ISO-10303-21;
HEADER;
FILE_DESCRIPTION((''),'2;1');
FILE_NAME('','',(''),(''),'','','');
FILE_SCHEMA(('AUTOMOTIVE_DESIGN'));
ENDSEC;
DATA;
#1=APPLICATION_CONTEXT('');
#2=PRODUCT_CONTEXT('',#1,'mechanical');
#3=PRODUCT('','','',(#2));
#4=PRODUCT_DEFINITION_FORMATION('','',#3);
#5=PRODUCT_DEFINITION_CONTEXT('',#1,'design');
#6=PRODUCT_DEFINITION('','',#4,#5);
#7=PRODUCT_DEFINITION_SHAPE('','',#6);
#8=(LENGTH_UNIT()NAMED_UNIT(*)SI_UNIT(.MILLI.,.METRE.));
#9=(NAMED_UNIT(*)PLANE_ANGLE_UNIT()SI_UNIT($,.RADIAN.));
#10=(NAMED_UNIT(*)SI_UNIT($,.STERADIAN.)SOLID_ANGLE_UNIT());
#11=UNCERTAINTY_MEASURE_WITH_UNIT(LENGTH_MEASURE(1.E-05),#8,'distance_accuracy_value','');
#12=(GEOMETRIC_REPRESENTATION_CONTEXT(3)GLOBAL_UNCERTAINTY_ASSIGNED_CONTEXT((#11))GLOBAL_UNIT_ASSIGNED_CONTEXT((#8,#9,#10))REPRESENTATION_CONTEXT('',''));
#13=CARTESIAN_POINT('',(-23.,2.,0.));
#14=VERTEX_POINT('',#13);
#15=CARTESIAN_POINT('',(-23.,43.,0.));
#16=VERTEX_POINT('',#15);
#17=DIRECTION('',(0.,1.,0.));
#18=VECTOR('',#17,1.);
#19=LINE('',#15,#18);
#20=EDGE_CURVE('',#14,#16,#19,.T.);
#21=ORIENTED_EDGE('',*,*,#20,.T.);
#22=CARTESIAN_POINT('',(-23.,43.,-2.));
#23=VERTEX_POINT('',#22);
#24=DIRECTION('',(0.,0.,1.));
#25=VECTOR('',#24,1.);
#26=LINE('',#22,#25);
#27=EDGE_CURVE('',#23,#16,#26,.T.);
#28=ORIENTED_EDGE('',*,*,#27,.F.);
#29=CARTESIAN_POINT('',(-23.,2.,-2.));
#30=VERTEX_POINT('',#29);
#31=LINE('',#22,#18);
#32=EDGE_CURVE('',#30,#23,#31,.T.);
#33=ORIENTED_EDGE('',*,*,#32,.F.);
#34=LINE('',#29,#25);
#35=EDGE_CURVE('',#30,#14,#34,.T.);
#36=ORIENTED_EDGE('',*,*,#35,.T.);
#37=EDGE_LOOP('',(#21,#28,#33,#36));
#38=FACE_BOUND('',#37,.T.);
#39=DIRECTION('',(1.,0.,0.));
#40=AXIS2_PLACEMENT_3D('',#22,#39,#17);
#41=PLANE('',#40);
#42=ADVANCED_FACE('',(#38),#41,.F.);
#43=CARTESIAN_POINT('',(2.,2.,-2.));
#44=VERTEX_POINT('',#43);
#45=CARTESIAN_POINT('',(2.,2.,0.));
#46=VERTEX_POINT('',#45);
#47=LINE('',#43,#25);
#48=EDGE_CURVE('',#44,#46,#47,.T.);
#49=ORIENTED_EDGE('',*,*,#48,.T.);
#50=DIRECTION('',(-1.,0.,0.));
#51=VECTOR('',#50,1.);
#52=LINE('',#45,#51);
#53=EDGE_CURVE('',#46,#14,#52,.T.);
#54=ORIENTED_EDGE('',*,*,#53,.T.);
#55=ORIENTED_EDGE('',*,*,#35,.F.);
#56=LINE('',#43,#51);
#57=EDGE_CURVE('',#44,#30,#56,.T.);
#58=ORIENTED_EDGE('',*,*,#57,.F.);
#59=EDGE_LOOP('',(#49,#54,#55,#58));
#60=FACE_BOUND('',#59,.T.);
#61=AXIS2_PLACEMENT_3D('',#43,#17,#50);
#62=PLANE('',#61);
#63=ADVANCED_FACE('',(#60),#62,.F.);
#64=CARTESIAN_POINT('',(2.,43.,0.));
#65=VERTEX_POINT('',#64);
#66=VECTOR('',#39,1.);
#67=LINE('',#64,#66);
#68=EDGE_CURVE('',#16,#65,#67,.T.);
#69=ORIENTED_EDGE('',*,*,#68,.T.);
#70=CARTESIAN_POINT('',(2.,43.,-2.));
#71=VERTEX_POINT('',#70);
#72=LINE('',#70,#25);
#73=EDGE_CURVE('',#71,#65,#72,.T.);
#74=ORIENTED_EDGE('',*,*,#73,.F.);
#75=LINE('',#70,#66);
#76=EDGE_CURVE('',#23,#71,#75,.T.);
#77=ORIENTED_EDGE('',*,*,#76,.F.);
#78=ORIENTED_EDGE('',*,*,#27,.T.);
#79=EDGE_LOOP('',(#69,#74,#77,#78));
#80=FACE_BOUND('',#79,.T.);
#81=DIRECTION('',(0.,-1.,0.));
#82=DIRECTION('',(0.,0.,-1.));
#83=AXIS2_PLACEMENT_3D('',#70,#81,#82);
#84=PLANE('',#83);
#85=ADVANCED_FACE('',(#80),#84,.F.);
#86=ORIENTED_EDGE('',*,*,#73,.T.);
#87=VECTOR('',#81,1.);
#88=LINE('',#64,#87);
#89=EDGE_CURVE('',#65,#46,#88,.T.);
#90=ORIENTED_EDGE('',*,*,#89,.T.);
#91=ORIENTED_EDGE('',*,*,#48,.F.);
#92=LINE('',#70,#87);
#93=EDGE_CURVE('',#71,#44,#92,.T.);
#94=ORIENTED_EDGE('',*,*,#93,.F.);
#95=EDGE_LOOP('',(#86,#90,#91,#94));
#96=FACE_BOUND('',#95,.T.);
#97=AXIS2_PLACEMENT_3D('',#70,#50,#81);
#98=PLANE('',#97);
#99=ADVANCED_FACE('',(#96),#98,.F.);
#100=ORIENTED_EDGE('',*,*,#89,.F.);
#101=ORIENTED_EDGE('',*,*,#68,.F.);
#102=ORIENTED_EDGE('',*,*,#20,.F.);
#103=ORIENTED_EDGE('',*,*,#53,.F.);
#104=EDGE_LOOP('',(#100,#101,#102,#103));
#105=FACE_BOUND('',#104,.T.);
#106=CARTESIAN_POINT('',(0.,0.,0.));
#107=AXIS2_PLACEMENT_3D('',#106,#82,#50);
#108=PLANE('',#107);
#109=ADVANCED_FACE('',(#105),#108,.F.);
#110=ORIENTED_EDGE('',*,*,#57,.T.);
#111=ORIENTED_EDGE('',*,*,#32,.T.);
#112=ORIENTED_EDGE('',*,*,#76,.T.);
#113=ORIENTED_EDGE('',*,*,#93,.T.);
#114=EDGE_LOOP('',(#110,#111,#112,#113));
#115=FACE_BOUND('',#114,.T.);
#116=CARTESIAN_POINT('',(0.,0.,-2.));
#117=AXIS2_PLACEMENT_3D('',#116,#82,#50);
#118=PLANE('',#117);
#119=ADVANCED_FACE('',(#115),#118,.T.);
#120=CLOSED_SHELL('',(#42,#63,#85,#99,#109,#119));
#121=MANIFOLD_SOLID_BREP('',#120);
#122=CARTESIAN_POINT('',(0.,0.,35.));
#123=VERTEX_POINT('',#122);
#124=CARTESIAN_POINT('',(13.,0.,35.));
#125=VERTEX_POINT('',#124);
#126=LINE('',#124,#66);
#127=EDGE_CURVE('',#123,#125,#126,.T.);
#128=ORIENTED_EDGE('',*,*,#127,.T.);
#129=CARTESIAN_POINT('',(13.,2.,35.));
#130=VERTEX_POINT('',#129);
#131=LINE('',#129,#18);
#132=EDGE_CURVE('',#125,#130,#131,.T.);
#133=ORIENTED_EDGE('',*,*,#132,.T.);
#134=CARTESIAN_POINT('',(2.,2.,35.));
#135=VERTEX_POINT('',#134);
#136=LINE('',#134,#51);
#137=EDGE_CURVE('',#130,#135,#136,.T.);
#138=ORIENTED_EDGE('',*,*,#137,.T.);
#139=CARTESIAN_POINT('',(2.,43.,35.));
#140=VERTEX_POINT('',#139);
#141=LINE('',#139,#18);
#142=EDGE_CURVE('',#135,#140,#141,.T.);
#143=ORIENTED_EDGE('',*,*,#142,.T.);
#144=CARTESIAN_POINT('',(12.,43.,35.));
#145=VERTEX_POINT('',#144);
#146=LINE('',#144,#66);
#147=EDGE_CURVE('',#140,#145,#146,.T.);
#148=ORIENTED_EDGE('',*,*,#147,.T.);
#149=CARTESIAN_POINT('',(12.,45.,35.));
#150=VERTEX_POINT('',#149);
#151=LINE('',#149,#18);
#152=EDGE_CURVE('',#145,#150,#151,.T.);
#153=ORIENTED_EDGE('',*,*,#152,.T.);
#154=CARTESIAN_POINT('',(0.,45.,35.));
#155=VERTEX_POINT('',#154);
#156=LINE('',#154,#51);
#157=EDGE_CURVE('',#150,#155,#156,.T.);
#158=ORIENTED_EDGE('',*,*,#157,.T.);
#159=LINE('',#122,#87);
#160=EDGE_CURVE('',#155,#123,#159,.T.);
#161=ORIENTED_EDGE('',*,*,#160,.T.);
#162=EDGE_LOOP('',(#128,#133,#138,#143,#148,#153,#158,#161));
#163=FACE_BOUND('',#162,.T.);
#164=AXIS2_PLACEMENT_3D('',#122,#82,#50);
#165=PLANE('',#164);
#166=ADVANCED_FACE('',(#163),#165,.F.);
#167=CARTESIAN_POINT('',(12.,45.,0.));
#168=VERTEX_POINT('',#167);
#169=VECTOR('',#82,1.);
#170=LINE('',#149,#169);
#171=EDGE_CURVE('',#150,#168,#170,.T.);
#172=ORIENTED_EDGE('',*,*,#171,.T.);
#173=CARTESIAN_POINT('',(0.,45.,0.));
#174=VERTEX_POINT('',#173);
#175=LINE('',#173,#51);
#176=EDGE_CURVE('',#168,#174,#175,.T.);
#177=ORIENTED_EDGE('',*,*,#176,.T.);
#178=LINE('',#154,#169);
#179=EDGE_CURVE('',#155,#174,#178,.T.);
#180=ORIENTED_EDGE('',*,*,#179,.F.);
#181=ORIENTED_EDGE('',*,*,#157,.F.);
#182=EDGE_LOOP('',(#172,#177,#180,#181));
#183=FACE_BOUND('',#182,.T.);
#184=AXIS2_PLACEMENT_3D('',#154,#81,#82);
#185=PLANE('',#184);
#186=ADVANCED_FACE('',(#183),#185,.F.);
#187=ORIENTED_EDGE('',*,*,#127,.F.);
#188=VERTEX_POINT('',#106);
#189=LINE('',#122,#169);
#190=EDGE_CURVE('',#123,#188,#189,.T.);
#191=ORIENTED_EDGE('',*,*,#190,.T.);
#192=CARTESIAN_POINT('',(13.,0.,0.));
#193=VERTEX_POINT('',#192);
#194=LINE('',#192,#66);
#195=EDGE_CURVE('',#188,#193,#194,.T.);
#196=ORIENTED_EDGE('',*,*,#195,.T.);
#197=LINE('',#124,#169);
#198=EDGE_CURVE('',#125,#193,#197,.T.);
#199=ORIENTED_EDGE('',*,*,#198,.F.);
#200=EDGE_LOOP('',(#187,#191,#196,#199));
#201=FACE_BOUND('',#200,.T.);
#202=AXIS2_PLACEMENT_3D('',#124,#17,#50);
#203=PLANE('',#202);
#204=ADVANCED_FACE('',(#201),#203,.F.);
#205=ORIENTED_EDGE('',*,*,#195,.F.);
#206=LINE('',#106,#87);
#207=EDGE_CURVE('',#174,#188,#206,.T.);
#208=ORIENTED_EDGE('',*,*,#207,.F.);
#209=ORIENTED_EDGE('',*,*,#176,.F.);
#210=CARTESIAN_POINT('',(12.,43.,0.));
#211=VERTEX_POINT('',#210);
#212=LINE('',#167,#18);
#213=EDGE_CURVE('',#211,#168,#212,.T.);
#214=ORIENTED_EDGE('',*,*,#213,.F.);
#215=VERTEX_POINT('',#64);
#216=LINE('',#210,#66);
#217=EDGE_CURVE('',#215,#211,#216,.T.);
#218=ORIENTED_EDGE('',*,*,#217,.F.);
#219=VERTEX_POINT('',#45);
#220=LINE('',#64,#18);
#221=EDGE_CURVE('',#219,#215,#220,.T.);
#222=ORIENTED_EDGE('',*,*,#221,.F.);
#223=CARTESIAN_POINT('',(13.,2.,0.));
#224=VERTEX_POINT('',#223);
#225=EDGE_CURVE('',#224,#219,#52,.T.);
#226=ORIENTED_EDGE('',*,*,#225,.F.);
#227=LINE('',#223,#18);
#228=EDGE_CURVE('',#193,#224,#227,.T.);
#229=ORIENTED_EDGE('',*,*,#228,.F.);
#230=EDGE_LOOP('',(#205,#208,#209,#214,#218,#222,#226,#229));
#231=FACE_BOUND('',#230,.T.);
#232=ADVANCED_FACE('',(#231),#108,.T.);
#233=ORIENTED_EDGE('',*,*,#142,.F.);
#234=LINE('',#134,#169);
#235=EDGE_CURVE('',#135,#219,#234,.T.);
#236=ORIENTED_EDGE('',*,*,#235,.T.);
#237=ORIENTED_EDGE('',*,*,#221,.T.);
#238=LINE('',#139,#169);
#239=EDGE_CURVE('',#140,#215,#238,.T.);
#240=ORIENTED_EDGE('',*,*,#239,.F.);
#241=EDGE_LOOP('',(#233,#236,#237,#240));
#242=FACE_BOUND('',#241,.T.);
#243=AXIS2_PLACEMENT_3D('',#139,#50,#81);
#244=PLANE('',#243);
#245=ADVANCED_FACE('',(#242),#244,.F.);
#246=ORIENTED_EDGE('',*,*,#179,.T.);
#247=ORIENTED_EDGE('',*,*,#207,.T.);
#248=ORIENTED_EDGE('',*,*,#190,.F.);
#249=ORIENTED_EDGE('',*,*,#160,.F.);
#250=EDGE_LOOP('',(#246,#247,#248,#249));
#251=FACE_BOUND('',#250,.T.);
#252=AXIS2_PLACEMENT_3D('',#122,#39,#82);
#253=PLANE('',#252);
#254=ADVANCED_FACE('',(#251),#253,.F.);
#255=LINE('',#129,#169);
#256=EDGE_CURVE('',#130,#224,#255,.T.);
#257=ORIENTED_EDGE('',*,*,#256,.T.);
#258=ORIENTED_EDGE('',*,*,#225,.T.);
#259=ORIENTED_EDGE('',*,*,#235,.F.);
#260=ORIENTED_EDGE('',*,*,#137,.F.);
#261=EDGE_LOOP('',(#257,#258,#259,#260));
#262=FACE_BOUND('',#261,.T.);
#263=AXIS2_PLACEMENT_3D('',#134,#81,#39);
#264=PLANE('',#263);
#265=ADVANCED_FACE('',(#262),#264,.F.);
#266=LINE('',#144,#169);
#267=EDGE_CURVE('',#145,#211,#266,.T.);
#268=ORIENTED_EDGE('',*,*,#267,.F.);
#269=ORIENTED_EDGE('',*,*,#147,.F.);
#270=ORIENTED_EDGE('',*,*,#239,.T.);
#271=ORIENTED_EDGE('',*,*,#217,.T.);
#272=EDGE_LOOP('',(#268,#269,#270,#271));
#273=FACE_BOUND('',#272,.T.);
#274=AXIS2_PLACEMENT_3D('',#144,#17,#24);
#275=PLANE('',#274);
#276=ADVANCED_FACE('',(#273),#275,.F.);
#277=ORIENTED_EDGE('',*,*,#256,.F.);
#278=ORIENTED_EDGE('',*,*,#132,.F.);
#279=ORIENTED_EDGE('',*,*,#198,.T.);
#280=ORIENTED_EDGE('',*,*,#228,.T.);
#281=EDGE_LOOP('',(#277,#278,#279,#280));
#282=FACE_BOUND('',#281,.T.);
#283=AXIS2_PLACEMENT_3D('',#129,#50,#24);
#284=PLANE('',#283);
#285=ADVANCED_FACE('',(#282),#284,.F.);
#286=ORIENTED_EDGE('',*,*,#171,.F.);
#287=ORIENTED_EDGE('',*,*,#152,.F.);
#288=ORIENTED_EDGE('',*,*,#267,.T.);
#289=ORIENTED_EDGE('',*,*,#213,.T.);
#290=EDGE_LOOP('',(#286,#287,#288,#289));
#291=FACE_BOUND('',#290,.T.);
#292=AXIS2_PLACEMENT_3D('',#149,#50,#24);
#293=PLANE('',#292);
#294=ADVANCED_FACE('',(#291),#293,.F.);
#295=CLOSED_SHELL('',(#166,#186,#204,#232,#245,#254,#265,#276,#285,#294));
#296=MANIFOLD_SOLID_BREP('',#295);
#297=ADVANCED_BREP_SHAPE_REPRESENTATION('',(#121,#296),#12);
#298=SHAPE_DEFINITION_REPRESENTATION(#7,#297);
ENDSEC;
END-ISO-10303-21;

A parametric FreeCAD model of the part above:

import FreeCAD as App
import Part
import Sketcher
Q = App.Units.Quantity

doc = App.newDocument("Part")
body = doc.addObject("PartDesign::Body", "Body")

sketch1 = body.newObject("Sketcher::SketchObject", "Sketch")
sketch1.AttachmentSupport = (doc.getObject("XY_Plane"), [""])
sketch1.MapMode = "FlatFace"
sketch1.addGeometry([
    Part.LineSegment(App.Vector(0, 45, 0), App.Vector(0, 0, 0)),
    Part.LineSegment(App.Vector(0, 0, 0), App.Vector(13, 0, 0)),
    Part.LineSegment(App.Vector(13, 0, 0), App.Vector(13, 2, 0)),
    Part.LineSegment(App.Vector(13, 2, 0), App.Vector(2, 2, 0)),
    Part.LineSegment(App.Vector(2, 2, 0), App.Vector(2, 43, 0)),
    Part.LineSegment(App.Vector(2, 43, 0), App.Vector(12, 43, 0)),
    Part.LineSegment(App.Vector(12, 43, 0), App.Vector(12, 45, 0)),
    Part.LineSegment(App.Vector(12, 45, 0), App.Vector(0, 45, 0)),
], False)
sketch1.addConstraint([
    Sketcher.Constraint("Coincident", 0, 2, 1, 1),
    Sketcher.Constraint("Coincident", 1, 2, 2, 1),
    Sketcher.Constraint("Coincident", 2, 2, 3, 1),
    Sketcher.Constraint("Coincident", 3, 2, 4, 1),
    Sketcher.Constraint("Coincident", 4, 2, 5, 1),
    Sketcher.Constraint("Coincident", 5, 2, 6, 1),
    Sketcher.Constraint("Coincident", 6, 2, 7, 1),
    Sketcher.Constraint("Coincident", 7, 2, 0, 1),
    Sketcher.Constraint("Vertical", 0),
    Sketcher.Constraint("Horizontal", 1),
    Sketcher.Constraint("Vertical", 2),
    Sketcher.Constraint("Horizontal", 3),
    Sketcher.Constraint("Vertical", 4),
    Sketcher.Constraint("Horizontal", 5),
    Sketcher.Constraint("Vertical", 6),
    Sketcher.Constraint("Horizontal", 7),
    Sketcher.Constraint("Coincident", 0, 2, -1, 1),
    Sketcher.Constraint("Equal", 2, 6),
    Sketcher.Constraint("DistanceX", 1, 1, 1, 2, Q("13 mm")),
    Sketcher.Constraint("DistanceX", 3, 2, 3, 1, Q("11 mm")),
    Sketcher.Constraint("DistanceX", 5, 1, 5, 2, Q("10 mm")),
    Sketcher.Constraint("DistanceY", 0, 2, 0, 1, Q("45 mm")),
    Sketcher.Constraint("DistanceY", 2, 1, 2, 2, Q("2 mm")),
])
pad1 = body.newObject("PartDesign::Pad", "Pad")
pad1.Profile = sketch1
pad1.Length = 35
body2 = doc.addObject("PartDesign::Body", "Body001")

sketch2 = body2.newObject("Sketcher::SketchObject", "Sketch001")
sketch2.AttachmentSupport = (doc.getObject("XY_Plane001"), [""])
sketch2.MapMode = "FlatFace"
sketch2.addGeometry([
    Part.LineSegment(App.Vector(2, 43, 0), App.Vector(2, 2, 0)),
    Part.LineSegment(App.Vector(2, 2, 0), App.Vector(-23, 2, 0)),
    Part.LineSegment(App.Vector(-23, 2, 0), App.Vector(-23, 43, 0)),
    Part.LineSegment(App.Vector(-23, 43, 0), App.Vector(2, 43, 0)),
], False)
sketch2.addConstraint([
    Sketcher.Constraint("Coincident", 0, 2, 1, 1),
    Sketcher.Constraint("Coincident", 1, 2, 2, 1),
    Sketcher.Constraint("Coincident", 2, 2, 3, 1),
    Sketcher.Constraint("Coincident", 3, 2, 0, 1),
    Sketcher.Constraint("Vertical", 0),
    Sketcher.Constraint("Horizontal", 1),
    Sketcher.Constraint("Vertical", 2),
    Sketcher.Constraint("Horizontal", 3),
    Sketcher.Constraint("DistanceX", 1, 2, 1, 1, Q("25 mm")),
    Sketcher.Constraint("DistanceY", 0, 2, 0, 1, Q("41 mm")),
    Sketcher.Constraint("DistanceX", -1, 1, 0, 2, Q("2 mm")),
    Sketcher.Constraint("DistanceY", -1, 1, 0, 2, Q("2 mm")),
])
pad2 = body2.newObject("PartDesign::Pad", "Pad001")
pad2.Profile = sketch2
pad2.Length = 2
pad2.Reversed = True

doc.recompute()
